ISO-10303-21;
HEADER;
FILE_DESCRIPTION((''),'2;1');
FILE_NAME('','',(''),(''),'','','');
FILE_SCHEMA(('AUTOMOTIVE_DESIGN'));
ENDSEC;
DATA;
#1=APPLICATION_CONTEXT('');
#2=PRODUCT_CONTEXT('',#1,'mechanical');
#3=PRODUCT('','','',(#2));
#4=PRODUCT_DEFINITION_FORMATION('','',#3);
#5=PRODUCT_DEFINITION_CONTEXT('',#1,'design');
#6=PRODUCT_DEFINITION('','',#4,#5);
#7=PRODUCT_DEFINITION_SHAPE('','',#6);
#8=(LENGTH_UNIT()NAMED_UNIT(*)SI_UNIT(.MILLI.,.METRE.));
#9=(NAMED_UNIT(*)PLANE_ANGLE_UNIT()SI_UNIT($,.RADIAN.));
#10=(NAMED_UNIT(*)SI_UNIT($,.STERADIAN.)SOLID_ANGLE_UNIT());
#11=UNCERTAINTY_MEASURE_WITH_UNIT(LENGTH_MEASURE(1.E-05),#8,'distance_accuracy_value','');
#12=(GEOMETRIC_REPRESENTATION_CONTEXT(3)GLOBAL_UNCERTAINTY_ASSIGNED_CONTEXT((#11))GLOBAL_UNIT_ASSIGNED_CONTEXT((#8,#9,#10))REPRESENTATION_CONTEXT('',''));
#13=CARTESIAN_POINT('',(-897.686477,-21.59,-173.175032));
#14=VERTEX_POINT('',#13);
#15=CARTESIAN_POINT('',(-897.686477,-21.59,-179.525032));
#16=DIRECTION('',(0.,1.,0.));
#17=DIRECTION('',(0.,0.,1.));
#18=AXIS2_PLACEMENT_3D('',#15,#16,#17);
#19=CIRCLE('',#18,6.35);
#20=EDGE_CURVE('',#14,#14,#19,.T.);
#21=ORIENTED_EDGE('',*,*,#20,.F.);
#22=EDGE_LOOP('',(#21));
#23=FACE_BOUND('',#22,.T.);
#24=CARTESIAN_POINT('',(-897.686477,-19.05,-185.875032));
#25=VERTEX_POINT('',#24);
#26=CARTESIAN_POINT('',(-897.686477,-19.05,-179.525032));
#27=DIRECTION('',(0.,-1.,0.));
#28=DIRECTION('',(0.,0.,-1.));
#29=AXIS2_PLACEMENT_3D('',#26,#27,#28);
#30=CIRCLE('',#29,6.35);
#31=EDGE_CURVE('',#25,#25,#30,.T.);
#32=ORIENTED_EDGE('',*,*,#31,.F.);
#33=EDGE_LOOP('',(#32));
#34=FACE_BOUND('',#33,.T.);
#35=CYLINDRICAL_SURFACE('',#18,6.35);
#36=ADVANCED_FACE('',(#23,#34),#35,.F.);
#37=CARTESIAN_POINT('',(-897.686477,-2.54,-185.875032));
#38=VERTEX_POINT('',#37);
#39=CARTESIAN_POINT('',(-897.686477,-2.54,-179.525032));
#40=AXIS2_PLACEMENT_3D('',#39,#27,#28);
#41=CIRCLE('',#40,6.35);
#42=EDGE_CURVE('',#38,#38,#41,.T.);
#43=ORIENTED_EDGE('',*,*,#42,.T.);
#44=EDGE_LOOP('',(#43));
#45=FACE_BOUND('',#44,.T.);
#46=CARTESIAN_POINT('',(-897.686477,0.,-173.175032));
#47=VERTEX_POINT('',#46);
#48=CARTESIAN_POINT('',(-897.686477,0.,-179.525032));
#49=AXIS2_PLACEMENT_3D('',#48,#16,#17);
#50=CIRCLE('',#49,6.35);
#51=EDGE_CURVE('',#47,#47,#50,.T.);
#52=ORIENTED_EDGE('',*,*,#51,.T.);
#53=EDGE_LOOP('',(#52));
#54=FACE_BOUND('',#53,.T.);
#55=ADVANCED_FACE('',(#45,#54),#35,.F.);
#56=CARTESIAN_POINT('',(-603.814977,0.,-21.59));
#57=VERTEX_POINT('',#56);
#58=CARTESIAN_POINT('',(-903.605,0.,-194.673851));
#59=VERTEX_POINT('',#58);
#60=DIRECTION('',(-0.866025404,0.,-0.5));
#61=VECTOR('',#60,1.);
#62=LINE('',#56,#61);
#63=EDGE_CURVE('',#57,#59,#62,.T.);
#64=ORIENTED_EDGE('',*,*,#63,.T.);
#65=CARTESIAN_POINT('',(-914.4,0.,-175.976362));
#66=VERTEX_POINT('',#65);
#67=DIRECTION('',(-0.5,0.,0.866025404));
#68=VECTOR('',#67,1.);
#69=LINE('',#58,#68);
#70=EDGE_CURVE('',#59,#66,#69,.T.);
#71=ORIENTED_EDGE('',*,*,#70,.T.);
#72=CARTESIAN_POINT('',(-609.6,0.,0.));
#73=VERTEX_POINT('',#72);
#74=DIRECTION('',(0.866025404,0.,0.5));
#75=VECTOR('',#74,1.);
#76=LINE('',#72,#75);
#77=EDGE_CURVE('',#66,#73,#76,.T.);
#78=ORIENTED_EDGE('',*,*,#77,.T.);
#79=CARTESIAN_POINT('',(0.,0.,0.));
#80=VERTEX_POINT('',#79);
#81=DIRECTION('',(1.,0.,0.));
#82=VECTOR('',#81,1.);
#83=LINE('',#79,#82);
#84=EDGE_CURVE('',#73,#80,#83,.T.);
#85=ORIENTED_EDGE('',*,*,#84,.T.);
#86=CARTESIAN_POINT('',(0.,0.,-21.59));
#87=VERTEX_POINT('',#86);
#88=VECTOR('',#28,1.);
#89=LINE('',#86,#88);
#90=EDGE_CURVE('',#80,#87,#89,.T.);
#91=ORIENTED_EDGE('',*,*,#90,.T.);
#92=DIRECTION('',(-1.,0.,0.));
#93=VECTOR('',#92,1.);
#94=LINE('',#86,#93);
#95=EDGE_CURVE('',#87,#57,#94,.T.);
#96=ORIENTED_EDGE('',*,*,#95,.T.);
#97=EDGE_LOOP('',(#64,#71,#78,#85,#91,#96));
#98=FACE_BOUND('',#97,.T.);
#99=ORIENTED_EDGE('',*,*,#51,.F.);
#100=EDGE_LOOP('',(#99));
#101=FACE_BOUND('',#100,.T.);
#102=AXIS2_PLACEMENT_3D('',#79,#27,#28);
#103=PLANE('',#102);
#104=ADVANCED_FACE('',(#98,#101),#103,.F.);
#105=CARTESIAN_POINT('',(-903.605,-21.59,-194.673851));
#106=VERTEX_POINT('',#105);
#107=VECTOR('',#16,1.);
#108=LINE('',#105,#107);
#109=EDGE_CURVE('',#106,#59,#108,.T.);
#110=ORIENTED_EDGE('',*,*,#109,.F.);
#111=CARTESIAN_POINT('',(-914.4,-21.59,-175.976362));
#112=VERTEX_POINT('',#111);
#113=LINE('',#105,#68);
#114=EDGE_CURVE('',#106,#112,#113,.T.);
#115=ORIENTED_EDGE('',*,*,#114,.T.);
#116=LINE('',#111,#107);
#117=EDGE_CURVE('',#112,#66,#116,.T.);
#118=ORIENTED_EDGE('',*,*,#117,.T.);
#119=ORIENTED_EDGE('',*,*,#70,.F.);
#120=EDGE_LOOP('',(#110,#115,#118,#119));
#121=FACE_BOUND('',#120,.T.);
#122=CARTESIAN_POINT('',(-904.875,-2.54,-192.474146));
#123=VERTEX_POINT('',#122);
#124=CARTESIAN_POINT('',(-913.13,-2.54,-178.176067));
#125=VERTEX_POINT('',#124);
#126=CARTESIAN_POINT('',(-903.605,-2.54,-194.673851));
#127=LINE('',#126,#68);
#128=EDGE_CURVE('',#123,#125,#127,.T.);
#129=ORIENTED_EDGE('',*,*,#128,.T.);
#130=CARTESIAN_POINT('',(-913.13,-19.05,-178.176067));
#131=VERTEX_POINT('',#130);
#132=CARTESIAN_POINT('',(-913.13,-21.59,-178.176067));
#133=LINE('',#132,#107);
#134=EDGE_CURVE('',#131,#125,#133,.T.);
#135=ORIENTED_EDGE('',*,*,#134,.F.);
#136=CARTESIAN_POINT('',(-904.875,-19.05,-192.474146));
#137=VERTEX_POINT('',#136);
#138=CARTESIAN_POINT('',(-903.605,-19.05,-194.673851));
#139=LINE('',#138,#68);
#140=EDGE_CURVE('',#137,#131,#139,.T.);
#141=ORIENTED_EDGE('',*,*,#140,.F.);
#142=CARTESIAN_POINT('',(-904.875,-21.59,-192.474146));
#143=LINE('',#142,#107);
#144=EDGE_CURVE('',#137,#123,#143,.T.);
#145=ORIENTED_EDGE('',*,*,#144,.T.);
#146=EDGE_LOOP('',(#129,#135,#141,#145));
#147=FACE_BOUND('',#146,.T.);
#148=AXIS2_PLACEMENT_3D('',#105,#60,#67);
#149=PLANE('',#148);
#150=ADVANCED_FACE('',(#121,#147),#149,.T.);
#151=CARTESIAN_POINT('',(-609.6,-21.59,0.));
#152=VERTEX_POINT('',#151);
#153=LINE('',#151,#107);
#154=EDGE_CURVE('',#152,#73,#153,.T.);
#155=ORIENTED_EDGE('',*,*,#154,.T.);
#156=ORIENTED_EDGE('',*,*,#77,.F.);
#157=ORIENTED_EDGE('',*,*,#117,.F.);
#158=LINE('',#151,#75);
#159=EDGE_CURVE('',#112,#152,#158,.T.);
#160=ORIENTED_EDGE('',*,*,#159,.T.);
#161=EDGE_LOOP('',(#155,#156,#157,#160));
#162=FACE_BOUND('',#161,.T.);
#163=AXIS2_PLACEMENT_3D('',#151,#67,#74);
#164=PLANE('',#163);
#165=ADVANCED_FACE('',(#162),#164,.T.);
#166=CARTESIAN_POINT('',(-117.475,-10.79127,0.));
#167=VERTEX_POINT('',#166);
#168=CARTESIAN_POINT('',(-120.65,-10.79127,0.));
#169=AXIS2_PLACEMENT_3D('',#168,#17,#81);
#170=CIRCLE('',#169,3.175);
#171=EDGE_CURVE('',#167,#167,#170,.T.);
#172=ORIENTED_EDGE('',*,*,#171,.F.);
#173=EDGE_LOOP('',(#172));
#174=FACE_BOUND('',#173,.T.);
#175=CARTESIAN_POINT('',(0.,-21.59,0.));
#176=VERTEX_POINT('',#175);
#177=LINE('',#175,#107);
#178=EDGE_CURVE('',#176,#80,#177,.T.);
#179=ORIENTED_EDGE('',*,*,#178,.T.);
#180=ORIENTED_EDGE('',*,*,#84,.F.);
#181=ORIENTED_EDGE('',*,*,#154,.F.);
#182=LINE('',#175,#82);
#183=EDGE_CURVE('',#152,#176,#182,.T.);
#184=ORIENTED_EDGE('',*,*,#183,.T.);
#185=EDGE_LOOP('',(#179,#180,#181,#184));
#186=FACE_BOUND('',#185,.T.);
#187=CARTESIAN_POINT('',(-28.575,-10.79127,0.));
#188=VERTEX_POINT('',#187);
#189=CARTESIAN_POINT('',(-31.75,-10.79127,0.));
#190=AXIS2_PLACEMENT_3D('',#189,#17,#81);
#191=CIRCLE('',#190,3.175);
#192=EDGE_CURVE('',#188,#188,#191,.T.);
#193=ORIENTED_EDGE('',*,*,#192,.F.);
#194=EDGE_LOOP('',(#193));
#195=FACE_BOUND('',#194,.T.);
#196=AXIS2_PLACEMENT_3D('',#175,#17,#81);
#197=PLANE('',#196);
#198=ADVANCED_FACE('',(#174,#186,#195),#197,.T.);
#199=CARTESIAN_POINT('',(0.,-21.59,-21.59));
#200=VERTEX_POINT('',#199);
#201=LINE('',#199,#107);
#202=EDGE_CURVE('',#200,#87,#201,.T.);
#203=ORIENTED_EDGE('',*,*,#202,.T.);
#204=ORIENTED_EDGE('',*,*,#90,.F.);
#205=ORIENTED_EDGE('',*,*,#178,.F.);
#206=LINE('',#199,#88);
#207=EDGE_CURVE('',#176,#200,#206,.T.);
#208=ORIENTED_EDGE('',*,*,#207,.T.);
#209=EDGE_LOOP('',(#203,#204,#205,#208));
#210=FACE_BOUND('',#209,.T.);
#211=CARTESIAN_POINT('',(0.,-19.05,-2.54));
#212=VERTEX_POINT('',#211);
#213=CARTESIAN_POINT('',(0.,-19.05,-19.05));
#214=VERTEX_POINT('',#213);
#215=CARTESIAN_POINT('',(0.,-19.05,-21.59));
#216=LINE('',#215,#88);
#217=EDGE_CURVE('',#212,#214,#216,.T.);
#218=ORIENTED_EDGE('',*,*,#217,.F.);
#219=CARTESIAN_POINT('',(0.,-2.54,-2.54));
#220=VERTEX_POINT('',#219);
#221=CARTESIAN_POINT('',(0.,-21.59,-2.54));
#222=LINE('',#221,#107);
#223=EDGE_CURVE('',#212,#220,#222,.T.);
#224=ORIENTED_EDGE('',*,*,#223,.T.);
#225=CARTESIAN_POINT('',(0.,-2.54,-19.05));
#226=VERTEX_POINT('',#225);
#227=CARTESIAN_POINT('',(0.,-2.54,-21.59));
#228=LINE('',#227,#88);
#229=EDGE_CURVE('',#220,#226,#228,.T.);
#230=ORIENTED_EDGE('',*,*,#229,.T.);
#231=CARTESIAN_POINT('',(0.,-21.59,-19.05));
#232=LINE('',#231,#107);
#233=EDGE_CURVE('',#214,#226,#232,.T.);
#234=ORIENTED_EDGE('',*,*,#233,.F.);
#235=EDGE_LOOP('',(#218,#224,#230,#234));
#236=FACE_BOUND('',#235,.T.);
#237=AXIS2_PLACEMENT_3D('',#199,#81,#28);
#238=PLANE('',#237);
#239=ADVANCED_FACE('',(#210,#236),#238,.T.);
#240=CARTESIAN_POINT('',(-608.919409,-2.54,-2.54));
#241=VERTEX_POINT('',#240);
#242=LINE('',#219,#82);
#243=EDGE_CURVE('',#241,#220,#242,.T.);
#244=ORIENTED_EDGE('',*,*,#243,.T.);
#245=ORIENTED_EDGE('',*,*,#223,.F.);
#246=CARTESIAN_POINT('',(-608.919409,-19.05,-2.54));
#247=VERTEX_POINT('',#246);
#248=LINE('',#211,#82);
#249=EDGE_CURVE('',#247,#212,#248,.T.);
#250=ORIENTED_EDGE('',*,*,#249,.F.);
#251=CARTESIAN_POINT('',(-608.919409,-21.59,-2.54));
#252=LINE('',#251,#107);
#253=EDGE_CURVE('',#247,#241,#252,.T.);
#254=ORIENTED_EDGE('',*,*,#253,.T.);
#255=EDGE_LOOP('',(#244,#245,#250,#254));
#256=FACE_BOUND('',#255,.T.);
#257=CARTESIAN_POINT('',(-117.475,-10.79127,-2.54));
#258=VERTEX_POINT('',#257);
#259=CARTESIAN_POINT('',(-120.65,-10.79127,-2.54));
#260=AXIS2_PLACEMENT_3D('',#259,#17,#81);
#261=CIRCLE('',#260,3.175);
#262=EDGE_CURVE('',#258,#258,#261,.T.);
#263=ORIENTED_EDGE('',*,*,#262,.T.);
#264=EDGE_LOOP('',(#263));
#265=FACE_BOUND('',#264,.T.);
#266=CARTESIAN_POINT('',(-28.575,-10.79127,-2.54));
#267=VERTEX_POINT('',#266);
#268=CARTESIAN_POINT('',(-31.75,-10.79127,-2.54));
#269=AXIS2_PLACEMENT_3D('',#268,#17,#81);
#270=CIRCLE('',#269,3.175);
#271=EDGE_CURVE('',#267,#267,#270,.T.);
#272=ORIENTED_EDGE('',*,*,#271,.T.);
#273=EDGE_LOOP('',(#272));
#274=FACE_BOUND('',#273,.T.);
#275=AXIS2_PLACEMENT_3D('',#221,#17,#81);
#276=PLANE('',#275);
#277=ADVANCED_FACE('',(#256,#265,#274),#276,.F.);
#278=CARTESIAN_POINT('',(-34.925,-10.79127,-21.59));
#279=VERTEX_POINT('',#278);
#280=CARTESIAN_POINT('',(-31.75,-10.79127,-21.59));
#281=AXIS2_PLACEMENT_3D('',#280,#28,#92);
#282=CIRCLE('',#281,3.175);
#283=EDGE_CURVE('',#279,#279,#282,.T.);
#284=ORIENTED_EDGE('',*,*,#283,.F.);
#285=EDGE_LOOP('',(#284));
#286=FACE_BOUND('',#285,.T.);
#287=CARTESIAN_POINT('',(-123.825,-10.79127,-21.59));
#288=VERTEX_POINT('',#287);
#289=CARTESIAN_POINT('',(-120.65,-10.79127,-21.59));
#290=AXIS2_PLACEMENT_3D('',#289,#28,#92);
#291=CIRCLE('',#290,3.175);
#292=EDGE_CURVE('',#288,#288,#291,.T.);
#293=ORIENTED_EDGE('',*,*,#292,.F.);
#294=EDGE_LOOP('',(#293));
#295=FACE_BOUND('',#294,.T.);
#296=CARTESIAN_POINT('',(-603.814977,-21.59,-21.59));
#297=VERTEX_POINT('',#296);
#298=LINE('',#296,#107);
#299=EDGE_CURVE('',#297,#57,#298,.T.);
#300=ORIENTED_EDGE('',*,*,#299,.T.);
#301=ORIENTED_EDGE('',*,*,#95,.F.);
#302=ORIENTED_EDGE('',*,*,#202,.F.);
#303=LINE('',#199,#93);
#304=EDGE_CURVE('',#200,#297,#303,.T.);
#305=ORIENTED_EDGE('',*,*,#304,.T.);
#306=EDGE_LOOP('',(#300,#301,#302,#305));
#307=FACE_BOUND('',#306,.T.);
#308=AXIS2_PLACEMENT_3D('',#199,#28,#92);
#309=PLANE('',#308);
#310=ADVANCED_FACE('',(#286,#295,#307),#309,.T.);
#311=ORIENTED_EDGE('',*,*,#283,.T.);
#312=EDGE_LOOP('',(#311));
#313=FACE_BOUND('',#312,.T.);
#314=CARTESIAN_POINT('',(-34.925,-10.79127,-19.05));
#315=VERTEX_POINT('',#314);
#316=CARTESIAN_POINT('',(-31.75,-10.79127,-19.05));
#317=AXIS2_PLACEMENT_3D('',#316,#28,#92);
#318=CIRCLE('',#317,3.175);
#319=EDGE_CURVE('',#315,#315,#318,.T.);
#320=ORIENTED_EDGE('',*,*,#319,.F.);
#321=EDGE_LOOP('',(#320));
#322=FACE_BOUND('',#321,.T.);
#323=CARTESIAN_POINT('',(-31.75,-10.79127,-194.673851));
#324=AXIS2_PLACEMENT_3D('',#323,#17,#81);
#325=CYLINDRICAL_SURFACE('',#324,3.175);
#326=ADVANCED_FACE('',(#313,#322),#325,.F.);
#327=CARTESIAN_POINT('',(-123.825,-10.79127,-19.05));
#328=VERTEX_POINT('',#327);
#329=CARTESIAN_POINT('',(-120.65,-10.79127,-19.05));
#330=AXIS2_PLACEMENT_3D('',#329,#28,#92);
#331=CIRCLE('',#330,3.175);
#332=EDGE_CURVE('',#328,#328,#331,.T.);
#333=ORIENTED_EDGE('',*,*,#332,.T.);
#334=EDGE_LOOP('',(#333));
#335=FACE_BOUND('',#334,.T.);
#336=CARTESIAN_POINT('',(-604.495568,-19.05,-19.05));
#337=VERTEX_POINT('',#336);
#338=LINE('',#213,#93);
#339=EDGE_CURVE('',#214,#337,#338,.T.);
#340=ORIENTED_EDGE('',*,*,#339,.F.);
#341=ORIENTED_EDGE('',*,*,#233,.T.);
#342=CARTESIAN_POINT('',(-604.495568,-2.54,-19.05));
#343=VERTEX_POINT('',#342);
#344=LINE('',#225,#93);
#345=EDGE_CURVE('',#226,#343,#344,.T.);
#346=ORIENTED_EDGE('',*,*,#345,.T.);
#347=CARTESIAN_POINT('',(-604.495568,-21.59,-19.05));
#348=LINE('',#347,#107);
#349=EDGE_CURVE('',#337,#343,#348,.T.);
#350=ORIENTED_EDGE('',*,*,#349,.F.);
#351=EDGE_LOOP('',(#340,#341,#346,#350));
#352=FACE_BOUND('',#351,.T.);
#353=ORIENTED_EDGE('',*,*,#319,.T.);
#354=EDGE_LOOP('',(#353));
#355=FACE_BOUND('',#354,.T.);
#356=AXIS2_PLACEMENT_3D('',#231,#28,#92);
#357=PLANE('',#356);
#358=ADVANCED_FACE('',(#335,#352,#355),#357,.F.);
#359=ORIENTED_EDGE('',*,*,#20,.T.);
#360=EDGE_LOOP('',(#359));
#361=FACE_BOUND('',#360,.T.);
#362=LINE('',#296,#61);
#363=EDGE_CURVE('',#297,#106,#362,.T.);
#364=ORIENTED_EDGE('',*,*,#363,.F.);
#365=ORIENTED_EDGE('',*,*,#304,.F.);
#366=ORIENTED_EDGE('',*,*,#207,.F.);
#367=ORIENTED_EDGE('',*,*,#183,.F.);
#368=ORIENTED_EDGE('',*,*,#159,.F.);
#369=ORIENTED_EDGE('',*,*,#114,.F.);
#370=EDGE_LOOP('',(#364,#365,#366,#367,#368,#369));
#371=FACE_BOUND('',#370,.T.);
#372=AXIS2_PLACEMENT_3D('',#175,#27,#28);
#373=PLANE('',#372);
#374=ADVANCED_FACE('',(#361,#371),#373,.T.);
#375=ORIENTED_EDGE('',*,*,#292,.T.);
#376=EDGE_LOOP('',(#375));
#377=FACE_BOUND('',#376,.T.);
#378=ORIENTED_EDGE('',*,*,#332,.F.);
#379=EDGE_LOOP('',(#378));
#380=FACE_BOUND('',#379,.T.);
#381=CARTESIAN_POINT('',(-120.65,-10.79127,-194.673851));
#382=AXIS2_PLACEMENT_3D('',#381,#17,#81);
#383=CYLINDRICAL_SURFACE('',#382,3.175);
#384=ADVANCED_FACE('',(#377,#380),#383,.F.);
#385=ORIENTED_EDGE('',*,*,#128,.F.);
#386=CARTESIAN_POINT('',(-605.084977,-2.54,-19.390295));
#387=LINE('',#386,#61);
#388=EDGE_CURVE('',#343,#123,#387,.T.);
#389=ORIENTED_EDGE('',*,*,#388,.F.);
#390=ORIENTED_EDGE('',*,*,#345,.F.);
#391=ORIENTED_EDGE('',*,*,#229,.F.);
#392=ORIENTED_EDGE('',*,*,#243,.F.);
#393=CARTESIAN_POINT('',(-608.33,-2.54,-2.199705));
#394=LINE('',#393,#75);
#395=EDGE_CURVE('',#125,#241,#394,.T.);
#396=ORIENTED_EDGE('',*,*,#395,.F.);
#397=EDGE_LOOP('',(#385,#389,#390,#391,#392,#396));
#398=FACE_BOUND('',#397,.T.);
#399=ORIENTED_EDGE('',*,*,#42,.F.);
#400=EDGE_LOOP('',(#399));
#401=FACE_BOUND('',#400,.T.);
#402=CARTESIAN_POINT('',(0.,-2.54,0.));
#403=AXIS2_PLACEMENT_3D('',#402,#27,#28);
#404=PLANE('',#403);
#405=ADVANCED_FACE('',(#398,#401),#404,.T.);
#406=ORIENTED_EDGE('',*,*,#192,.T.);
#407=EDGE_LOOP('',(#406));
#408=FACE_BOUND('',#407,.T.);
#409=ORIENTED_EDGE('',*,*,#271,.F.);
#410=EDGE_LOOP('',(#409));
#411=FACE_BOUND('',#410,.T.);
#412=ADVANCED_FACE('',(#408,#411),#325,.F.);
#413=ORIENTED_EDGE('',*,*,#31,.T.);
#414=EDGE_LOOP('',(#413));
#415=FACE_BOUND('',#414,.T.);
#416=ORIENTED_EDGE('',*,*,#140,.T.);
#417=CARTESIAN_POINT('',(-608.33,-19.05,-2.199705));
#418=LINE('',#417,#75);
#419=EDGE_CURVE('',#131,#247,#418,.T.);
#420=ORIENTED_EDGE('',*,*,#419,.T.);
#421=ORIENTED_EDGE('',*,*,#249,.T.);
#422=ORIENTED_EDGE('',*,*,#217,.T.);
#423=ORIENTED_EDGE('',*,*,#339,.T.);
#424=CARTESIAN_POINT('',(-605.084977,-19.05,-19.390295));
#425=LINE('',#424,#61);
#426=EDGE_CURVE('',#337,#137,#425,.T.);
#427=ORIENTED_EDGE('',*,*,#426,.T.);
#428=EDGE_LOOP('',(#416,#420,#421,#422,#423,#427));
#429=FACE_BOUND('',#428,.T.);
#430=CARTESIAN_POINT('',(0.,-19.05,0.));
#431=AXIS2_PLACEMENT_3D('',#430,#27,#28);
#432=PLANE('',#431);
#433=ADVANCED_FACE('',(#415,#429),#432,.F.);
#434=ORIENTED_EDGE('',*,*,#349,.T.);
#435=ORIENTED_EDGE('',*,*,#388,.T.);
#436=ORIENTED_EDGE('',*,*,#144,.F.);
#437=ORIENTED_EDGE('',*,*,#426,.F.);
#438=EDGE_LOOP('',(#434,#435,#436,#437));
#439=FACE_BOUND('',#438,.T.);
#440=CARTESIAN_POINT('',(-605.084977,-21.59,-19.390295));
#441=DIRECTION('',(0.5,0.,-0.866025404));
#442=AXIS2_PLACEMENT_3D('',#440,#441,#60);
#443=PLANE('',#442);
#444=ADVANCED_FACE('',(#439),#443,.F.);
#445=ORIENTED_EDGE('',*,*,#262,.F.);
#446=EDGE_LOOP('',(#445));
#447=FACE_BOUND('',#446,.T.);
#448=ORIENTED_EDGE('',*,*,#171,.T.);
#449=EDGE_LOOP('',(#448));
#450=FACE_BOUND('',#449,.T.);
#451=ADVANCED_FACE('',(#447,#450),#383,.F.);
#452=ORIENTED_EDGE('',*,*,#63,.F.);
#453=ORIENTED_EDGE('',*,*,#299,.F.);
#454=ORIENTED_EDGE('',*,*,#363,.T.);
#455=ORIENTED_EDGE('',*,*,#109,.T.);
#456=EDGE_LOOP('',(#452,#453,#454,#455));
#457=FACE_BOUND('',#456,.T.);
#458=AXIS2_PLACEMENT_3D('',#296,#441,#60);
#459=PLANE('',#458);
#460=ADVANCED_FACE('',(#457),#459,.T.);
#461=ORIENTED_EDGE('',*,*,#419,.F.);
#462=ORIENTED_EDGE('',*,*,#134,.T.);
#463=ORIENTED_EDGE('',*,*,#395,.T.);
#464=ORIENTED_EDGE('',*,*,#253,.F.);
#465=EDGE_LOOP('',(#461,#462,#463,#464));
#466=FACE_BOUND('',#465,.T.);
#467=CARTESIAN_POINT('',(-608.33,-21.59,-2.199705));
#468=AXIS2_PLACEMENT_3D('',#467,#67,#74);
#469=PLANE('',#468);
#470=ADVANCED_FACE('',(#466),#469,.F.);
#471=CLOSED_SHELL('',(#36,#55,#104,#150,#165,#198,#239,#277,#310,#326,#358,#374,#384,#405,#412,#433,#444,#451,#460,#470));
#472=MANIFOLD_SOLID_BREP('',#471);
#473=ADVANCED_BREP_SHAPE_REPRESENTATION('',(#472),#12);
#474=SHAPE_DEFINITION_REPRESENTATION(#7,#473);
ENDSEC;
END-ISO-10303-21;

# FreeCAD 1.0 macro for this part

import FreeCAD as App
import Part
import Sketcher
from FreeCAD import Vector
Q = App.Units.Quantity


def faces_at(feature, points):
    """Names of the faces that lie closest to the given points."""
    faces = feature.Shape.Faces
    near = lambda p: min(range(len(faces)), key=lambda i: faces[i].distToShape(Part.Vertex(*p))[0])
    return sorted({f"Face{near(p) + 1}" for p in points})

doc = App.newDocument("Part")
body = doc.addObject("PartDesign::Body", "Body")

# Sketch on XZ plane
sketch1 = body.newObject("Sketcher::SketchObject", "Sketch")
sketch1.AttachmentSupport = (doc.getObject("XZ_Plane"), [""])
sketch1.MapMode = "FlatFace"
sketch1.addGeometry([
    Part.LineSegment(Vector(-610, 0, 0), Vector(0, 0, 0)),  # 0
    Part.LineSegment(Vector(0, 0, 0), Vector(0, -22, 0)),  # 1
    Part.LineSegment(Vector(0, -22, 0), Vector(-604, -22, 0)),  # 2
    Part.LineSegment(Vector(-604, -22, 0), Vector(-904, -195, 0)),  # 3
    Part.LineSegment(Vector(-904, -195, 0), Vector(-914, -176, 0)),  # 4
    Part.LineSegment(Vector(-914, -176, 0), Vector(-610, 0, 0)),  # 5
], False)
sketch1.addConstraint([
    Sketcher.Constraint("Coincident", 0, 2, 1, 1),
    Sketcher.Constraint("Coincident", 1, 2, 2, 1),
    Sketcher.Constraint("Coincident", 2, 2, 3, 1),
    Sketcher.Constraint("Coincident", 3, 2, 4, 1),
    Sketcher.Constraint("Coincident", 4, 2, 5, 1),
    Sketcher.Constraint("Coincident", 5, 2, 0, 1),
    Sketcher.Constraint("Horizontal", 0),
    Sketcher.Constraint("Vertical", 1),
    Sketcher.Constraint("Horizontal", 2),
    Sketcher.Constraint("Coincident", 0, 2, -1, 1),
    Sketcher.Constraint("Perpendicular", 3, 4),
    Sketcher.Constraint("Perpendicular", 4, 5),
    Sketcher.Constraint("DistanceX", 0, 1, 0, 2, Q("24 in")),
    Sketcher.Constraint("DistanceX", 4, 2, -1, 1, Q("36 in")),
    Sketcher.Constraint("Angle", 3, Q("-150 deg")),
    Sketcher.Constraint("DistanceY", 1, 2, 1, 1, Q("0.85 in")),
    Sketcher.Constraint("Distance", 4, Q("0.85 in")),
])
pad1 = body.newObject("PartDesign::Pad", "Pad")
pad1.Profile = sketch1
pad1.Length = Q("0.85 in")
doc.recompute()

thickness = body.newObject("PartDesign::Thickness", "Thickness")
thickness.Base = (pad1, faces_at(pad1, [(-909.003, -10.795, -185.325), (0, -10.795, -10.795)]))
thickness.Value = Q("0.1 in")
thickness.Reversed = True
thickness.Join = "Intersection"

# Sketch on XY plane
sketch2 = body.newObject("Sketcher::SketchObject", "Sketch001")
sketch2.AttachmentSupport = (doc.getObject("XY_Plane"), [""])
sketch2.MapMode = "FlatFace"
sketch2.addGeometry([
    Part.Circle(Vector(-120.7, -10.8, 0), Vector(0, 0, 1), 3.2),
    Part.Circle(Vector(-31.8, -10.8, 0), Vector(0, 0, 1), 3.2),
], False)
sketch2.addConstraint([
    Sketcher.Constraint("Equal", 0, 1),
    Sketcher.Constraint("Horizontal", 0, 3, 1, 3),
    Sketcher.Constraint("Diameter", 0, Q("0.25 in")),
    Sketcher.Constraint("DistanceX", 0, 3, 1, 3, Q("3.5 in")),
    Sketcher.Constraint("DistanceX", 0, 3, -1, 1, Q("4.75 in")),
    Sketcher.Constraint("DistanceY", 0, 3, -1, 1, Q("10.79127 mm")),
])
pocket1 = body.newObject("PartDesign::Pocket", "Pocket")
pocket1.Profile = sketch2
pocket1.Type = "ThroughAll"

# Sketch on XZ plane
sketch3 = body.newObject("Sketcher::SketchObject", "Sketch002")
sketch3.AttachmentSupport = (doc.getObject("XZ_Plane"), [""])
sketch3.MapMode = "FlatFace"
sketch3.addGeometry(Part.Circle(Vector(-898, -180, 0), Vector(0, 0, 1), 6), False)
sketch3.addConstraint([
    Sketcher.Constraint("Diameter", 0, Q("0.5 in")),
    Sketcher.Constraint("DistanceX", 0, 3, -1, 1, Q("897.686477 mm")),
    Sketcher.Constraint("DistanceY", 0, 3, -1, 1, Q("179.525032 mm")),
])
pocket2 = body.newObject("PartDesign::Pocket", "Pocket001")
pocket2.Profile = sketch3
pocket2.Type = "ThroughAll"
pocket2.Reversed = True

doc.recompute()
